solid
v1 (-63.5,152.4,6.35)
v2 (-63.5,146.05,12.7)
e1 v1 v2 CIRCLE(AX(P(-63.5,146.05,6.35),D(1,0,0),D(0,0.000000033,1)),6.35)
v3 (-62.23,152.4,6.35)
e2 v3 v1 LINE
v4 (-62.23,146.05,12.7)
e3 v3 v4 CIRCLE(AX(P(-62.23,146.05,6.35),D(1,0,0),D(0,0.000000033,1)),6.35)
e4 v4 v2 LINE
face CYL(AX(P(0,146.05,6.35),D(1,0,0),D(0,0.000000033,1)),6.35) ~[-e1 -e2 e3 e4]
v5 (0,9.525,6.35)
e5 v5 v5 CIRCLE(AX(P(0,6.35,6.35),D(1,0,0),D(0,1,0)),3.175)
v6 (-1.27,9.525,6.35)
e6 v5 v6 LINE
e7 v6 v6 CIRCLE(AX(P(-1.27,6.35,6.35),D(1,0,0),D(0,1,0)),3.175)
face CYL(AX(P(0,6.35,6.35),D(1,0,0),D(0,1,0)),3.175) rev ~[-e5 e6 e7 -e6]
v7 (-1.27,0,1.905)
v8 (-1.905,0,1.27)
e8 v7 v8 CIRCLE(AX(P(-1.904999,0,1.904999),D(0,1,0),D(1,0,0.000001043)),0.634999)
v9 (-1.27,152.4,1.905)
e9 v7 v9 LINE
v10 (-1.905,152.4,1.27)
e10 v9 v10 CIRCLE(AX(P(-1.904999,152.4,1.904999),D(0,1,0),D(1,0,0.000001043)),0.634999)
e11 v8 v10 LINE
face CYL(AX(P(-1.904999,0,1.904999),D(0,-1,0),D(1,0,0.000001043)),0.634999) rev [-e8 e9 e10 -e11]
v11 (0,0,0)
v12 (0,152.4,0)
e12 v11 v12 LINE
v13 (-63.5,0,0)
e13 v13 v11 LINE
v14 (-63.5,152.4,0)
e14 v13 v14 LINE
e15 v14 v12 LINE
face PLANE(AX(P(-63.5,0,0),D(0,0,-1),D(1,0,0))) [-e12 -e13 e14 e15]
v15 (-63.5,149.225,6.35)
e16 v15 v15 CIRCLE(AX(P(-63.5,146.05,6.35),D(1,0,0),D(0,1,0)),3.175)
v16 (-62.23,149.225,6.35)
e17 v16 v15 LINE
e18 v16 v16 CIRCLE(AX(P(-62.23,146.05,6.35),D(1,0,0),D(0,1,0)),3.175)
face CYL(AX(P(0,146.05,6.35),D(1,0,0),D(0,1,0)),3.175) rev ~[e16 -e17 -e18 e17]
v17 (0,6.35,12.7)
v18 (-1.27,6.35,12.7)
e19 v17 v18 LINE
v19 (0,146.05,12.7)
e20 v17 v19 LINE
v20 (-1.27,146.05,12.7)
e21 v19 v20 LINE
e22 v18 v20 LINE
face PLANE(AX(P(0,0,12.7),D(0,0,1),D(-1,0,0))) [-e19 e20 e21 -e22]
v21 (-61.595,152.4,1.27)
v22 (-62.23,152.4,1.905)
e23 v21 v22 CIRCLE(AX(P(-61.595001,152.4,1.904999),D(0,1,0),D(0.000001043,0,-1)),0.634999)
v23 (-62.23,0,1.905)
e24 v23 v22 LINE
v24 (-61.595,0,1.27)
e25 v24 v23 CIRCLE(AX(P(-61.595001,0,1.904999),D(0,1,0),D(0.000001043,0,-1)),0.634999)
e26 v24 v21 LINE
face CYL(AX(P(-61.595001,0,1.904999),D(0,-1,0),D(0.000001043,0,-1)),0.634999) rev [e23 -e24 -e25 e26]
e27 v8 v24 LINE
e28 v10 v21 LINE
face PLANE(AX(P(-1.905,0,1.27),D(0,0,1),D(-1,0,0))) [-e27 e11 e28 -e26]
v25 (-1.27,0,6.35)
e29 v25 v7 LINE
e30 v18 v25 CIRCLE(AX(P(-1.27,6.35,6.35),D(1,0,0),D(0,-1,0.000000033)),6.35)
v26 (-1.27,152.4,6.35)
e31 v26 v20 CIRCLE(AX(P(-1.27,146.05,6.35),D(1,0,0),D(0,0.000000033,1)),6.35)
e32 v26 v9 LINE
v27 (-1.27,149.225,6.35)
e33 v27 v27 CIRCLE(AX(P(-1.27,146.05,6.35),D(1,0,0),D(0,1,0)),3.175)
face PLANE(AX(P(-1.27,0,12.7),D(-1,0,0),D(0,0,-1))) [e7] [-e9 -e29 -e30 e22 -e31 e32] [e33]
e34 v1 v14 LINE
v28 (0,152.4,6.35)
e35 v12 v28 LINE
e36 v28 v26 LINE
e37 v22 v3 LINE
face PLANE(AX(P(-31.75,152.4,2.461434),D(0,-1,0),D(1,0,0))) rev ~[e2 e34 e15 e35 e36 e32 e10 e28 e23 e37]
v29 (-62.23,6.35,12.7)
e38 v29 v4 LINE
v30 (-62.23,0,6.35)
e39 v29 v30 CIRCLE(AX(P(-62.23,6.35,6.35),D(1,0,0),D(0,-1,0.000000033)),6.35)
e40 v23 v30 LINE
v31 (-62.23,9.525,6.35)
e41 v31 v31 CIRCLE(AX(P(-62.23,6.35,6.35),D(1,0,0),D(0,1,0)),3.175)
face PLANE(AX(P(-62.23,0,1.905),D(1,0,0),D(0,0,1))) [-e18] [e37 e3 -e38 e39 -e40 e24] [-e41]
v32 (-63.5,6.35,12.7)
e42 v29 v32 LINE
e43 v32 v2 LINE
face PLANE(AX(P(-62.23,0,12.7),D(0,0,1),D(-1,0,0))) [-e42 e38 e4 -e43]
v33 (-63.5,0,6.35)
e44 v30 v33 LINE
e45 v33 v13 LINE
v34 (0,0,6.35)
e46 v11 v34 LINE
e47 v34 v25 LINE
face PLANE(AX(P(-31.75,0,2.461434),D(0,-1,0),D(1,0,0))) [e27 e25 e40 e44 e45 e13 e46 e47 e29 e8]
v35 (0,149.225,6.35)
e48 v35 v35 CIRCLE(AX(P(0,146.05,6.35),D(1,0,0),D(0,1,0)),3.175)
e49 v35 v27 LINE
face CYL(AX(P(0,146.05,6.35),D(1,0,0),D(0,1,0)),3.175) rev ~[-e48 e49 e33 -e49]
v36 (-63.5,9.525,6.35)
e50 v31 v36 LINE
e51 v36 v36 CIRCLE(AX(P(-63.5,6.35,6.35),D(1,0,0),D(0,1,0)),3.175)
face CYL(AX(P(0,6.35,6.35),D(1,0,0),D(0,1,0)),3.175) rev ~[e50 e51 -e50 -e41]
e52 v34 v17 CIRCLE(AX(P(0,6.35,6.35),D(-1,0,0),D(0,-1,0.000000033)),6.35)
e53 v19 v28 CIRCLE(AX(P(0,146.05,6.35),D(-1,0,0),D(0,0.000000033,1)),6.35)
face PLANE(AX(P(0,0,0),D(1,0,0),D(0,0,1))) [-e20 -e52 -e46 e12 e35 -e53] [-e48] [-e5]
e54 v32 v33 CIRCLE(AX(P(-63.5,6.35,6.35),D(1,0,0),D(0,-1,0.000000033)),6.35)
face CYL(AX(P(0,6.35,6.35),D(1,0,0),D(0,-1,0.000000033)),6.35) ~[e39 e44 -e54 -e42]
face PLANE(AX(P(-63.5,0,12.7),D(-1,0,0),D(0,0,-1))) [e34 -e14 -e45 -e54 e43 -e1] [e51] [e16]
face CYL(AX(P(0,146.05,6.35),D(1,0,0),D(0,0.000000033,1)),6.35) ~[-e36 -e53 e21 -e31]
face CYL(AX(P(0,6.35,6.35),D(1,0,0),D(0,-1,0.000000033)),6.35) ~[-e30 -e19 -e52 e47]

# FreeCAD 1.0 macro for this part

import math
import FreeCAD as App
import Part
import Sketcher
from FreeCAD import Vector
Q = App.Units.Quantity

doc = App.newDocument("Part")
body = doc.addObject("PartDesign::Body", "Body")

sketch1 = doc.addObject("Sketcher::SketchObject", "Sketch")
body.addObject(sketch1)
sketch1.AttachmentSupport = (doc.XZ_Plane, [""])
sketch1.MapMode = "FlatFace"
sketch1.addGeometry([
    Part.LineSegment(Vector(-63.5, 0, 0), Vector(0, 0, 0)),
    Part.LineSegment(Vector(0, 0, 0), Vector(0, 12.7, 0)),
    Part.LineSegment(Vector(0, 12.7, 0), Vector(-1.27, 12.7, 0)),
    Part.LineSegment(Vector(-1.27, 12.7, 0), Vector(-1.27, 1.905, 0)),
    Part.ArcOfCircle(Part.Circle(Vector(-1.904999, 1.904999, 0), Vector(0, 0, 1), 0.634999), math.radians(-90.00006), math.radians(0.00006)),
    Part.LineSegment(Vector(-1.905, 1.27, 0), Vector(-61.595, 1.27, 0)),
    Part.ArcOfCircle(Part.Circle(Vector(-61.595001, 1.904999, 0), Vector(0, 0, 1), 0.634999), math.radians(179.99994), math.radians(270.00006)),
    Part.LineSegment(Vector(-62.23, 1.905, 0), Vector(-62.23, 12.7, 0)),
    Part.LineSegment(Vector(-62.23, 12.7, 0), Vector(-63.5, 12.7, 0)),
    Part.LineSegment(Vector(-63.5, 12.7, 0), Vector(-63.5, 0, 0)),
], False)
sketch1.addConstraint([
    Sketcher.Constraint("Coincident", 0, 2, 1, 1),
    Sketcher.Constraint("Coincident", 1, 2, 2, 1),
    Sketcher.Constraint("Coincident", 2, 2, 3, 1),
    Sketcher.Constraint("Tangent", 3, 2, 4, 2),
    Sketcher.Constraint("Tangent", 4, 1, 5, 1),
    Sketcher.Constraint("Tangent", 5, 2, 6, 2),
    Sketcher.Constraint("Tangent", 6, 1, 7, 1),
    Sketcher.Constraint("Coincident", 7, 2, 8, 1),
    Sketcher.Constraint("Coincident", 8, 2, 9, 1),
    Sketcher.Constraint("Coincident", 9, 2, 0, 1),
    Sketcher.Constraint("Horizontal", 0),
    Sketcher.Constraint("Vertical", 1),
    Sketcher.Constraint("Horizontal", 2),
    Sketcher.Constraint("Vertical", 3),
    Sketcher.Constraint("Horizontal", 5),
    Sketcher.Constraint("Vertical", 7),
    Sketcher.Constraint("Horizontal", 8),
    Sketcher.Constraint("Vertical", 9),
    Sketcher.Constraint("Coincident", 0, 2, -1, 1),
    Sketcher.Constraint("Equal", 4, 6),
    Sketcher.Constraint("Horizontal", 2, 2, 7, 2),
    Sketcher.Constraint("Equal", 2, 8),
    Sketcher.Constraint("DistanceX", 0, 1, 0, 2, Q("2.5 in")),
    Sketcher.Constraint("DistanceY", 1, 1, 1, 2, Q("0.5 in")),
    Sketcher.Constraint("Radius", 4, Q("0.025 in")),
    Sketcher.Constraint("DistanceX", 2, 2, 2, 1, Q("0.05 in")),
    Sketcher.Constraint("DistanceY", 3, 2, 3, 1, Q("0.425 in")),
])
pad1 = doc.addObject("PartDesign::Pad", "Pad")
body.addObject(pad1)
pad1.Profile = sketch1
pad1.Length = Q("6 in")
pad1.Reversed = True

sketch2 = doc.addObject("Sketcher::SketchObject", "Sketch001")
body.addObject(sketch2)
sketch2.AttachmentSupport = (doc.YZ_Plane, [""])
sketch2.MapMode = "FlatFace"
sketch2.addGeometry([
    Part.Circle(Vector(6.35, 6.35, 0), Vector(0, 0, 1), 3.175),
    Part.ArcOfCircle(Part.Circle(Vector(6.35, 6.35, 0), Vector(0, 0, 1), 6.35), math.radians(90.000002), math.radians(179.999998)),
    Part.LineSegment(Vector(6.35, 12.7, 0), Vector(0, 12.7, 0)),
    Part.LineSegment(Vector(0, 12.7, 0), Vector(0, 6.35, 0)),
    Part.LineSegment(Vector(152.4, 12.7, 0), Vector(146.05, 12.7, 0)),
    Part.ArcOfCircle(Part.Circle(Vector(146.05, 6.35, 0), Vector(0, 0, 1), 6.35), math.radians(0.000002), math.radians(89.999998)),
    Part.LineSegment(Vector(152.4, 6.35, 0), Vector(152.4, 12.7, 0)),
    Part.Circle(Vector(146.05, 6.35, 0), Vector(0, 0, 1), 3.175),
], False)
sketch2.addConstraint([
    Sketcher.Constraint("Tangent", 1, 1, 2, 1),
    Sketcher.Constraint("Coincident", 2, 2, 3, 1),
    Sketcher.Constraint("Tangent", 3, 2, 1, 2),
    Sketcher.Constraint("Tangent", 4, 2, 5, 2),
    Sketcher.Constraint("Tangent", 5, 1, 6, 1),
    Sketcher.Constraint("Coincident", 6, 2, 4, 1),
    Sketcher.Constraint("Horizontal", 2),
    Sketcher.Constraint("Vertical", 3),
    Sketcher.Constraint("Horizontal", 4),
    Sketcher.Constraint("Vertical", 6),
    Sketcher.Constraint("Coincident", 1, 3, 0, 3),
    Sketcher.Constraint("Coincident", 7, 3, 5, 3),
    Sketcher.Constraint("Equal", 1, 5),
    Sketcher.Constraint("Equal", 0, 7),
    Sketcher.Constraint("PointOnObject", 2, 2, -2),
    Sketcher.Constraint("Horizontal", 1, 3, 5, 3),
    Sketcher.Constraint("Diameter", 0, Q("0.25 in")),
    Sketcher.Constraint("Radius", 1, Q("0.25 in")),
    Sketcher.Constraint("DistanceX", -1, 1, 5, 1, Q("6 in")),
    Sketcher.Constraint("DistanceY", -1, 1, 1, 1, Q("0.5 in")),
])
pocket1 = doc.addObject("PartDesign::Pocket", "Pocket")
body.addObject(pocket1)
pocket1.Profile = sketch2
pocket1.Type = "ThroughAll"

doc.recompute()
